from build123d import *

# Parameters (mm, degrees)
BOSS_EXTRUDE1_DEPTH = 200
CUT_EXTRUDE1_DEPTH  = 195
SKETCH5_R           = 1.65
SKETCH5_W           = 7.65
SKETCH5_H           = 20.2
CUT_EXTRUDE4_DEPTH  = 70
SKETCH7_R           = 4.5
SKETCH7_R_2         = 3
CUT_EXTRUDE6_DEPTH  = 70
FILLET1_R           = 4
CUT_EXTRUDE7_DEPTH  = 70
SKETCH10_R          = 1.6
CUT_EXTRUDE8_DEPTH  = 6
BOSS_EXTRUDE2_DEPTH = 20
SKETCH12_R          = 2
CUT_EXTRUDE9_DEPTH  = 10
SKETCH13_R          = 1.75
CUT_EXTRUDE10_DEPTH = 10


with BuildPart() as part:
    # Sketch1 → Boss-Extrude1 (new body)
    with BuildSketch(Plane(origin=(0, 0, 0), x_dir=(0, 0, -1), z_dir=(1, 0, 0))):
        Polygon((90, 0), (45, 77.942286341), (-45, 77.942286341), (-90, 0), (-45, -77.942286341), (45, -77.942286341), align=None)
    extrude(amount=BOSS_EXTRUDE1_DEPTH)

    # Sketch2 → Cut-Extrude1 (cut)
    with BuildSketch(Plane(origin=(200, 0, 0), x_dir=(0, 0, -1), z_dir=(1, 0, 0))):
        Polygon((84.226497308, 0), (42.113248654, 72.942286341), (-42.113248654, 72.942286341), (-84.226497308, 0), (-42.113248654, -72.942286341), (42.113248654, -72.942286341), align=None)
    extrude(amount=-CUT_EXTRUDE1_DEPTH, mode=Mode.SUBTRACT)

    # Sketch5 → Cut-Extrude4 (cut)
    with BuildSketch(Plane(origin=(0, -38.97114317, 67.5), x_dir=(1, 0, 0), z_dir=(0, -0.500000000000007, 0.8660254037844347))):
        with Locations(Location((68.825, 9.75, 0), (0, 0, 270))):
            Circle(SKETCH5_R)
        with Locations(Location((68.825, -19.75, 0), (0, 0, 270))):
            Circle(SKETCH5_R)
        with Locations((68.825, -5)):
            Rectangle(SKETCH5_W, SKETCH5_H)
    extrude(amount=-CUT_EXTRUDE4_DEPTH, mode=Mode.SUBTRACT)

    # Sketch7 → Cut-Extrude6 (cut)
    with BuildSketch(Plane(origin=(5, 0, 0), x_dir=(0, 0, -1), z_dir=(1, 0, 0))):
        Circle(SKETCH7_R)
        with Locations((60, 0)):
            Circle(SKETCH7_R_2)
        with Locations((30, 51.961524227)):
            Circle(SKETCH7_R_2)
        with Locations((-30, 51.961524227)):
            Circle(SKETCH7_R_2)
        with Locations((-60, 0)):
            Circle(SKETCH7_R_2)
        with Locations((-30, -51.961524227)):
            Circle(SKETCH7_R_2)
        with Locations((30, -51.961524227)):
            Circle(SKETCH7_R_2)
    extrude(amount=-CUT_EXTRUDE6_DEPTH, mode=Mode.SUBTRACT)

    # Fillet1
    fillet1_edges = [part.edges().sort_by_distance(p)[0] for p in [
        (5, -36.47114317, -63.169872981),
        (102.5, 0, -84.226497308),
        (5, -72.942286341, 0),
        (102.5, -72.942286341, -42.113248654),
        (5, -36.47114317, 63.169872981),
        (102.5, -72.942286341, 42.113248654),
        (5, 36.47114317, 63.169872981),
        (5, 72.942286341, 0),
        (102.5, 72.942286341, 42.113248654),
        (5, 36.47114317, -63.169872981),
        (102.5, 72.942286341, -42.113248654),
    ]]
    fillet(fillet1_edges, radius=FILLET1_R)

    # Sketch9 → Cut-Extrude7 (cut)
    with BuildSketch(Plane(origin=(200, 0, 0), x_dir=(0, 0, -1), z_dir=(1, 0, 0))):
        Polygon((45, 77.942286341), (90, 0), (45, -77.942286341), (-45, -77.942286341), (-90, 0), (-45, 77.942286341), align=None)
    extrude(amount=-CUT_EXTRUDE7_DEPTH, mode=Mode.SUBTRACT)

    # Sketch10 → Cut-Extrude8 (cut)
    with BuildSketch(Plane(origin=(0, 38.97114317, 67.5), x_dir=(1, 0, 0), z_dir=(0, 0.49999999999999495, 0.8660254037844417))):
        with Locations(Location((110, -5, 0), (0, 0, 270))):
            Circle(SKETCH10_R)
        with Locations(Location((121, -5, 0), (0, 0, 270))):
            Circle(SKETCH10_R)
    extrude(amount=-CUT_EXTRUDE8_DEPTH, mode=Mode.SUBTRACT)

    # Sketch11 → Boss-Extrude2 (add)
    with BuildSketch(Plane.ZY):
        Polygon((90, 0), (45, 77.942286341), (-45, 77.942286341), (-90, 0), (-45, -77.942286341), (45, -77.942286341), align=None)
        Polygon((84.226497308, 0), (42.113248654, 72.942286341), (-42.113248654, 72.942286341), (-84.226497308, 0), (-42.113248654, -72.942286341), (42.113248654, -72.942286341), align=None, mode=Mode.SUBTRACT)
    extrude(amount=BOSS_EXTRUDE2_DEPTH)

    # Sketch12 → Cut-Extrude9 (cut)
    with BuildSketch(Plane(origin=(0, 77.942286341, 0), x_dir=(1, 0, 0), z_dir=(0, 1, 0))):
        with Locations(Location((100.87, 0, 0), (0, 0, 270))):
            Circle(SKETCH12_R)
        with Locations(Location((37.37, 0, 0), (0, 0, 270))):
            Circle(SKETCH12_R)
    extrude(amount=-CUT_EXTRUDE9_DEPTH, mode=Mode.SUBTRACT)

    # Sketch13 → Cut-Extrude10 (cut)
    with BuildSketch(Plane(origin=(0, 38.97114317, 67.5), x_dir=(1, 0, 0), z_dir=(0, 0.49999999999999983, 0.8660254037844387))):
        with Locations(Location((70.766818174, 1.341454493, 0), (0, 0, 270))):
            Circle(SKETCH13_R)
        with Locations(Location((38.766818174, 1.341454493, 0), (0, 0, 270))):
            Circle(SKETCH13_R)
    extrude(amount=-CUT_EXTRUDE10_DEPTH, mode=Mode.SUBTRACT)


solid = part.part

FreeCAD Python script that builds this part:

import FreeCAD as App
import Part
import Sketcher

V = App.Vector
Q = App.Units.Quantity


def edges_at(feature, points):
    """Names of the edges that pass closest to the given points."""
    edges = feature.Shape.Edges
    near = lambda p: min(range(len(edges)), key=lambda i: edges[i].distToShape(Part.Vertex(*p))[0])
    return sorted({f"Edge{near(p) + 1}" for p in points})

doc = App.newDocument("Part")
body = doc.addObject("PartDesign::Body", "Body")

sketch1 = body.newObject("Sketcher::SketchObject", "Sketch")
sketch1.AttachmentSupport = (doc.getObject("YZ_Plane"), [""])
sketch1.MapMode = "FlatFace"
sketch1.addGeometry([
    Part.LineSegment(V(0, -90, 0), V(78, -45, 0)),
    Part.LineSegment(V(78, -45, 0), V(78, 45, 0)),
    Part.LineSegment(V(78, 45, 0), V(0, 90, 0)),
    Part.LineSegment(V(0, 90, 0), V(-78, 45, 0)),
    Part.LineSegment(V(-78, 45, 0), V(-78, -45, 0)),
    Part.LineSegment(V(-78, -45, 0), V(0, -90, 0)),
], False)
sketch1.addConstraint([
    Sketcher.Constraint("Coincident", 0, 2, 1, 1),
    Sketcher.Constraint("Coincident", 1, 2, 2, 1),
    Sketcher.Constraint("Coincident", 2, 2, 3, 1),
    Sketcher.Constraint("Coincident", 3, 2, 4, 1),
    Sketcher.Constraint("Coincident", 4, 2, 5, 1),
    Sketcher.Constraint("Coincident", 5, 2, 0, 1),
    Sketcher.Constraint("Vertical", 1),
    Sketcher.Constraint("Vertical", 4),
    Sketcher.Constraint("Symmetric", 0, 2, 3, 2, -1, 1),
    Sketcher.Constraint("Symmetric", 2, 2, 5, 2, -1, 1),
    Sketcher.Constraint("PointOnObject", 2, 2, -2),
    Sketcher.Constraint("Parallel", 2, 5),
    Sketcher.Constraint("Horizontal", 1, 2, 3, 2),
    Sketcher.Constraint("DistanceY", 1, 1, 1, 2, 90.0),
    Sketcher.Constraint("Angle", 0, Q("30 deg")),
    Sketcher.Constraint("Distance", 0, 90.0),
])
pad1 = body.newObject("PartDesign::Pad", "Pad")
pad1.Profile = sketch1
pad1.Length = 200

sketch2 = body.newObject("Sketcher::SketchObject", "Sketch001")
sketch2.AttachmentSupport = (doc.getObject("YZ_Plane"), [""])
sketch2.MapMode = "FlatFace"
sketch2.AttachmentOffset = App.Placement(V(0, 0, 200), App.Rotation())
sketch2.addGeometry([
    Part.LineSegment(V(0, -84, 0), V(73, -42, 0)),
    Part.LineSegment(V(73, -42, 0), V(73, 42, 0)),
    Part.LineSegment(V(73, 42, 0), V(0, 84, 0)),
    Part.LineSegment(V(0, 84, 0), V(-73, 42, 0)),
    Part.LineSegment(V(-73, 42, 0), V(-73, -42, 0)),
    Part.LineSegment(V(-73, -42, 0), V(0, -84, 0)),
], False)
sketch2.addConstraint([
    Sketcher.Constraint("Coincident", 0, 2, 1, 1),
    Sketcher.Constraint("Coincident", 1, 2, 2, 1),
    Sketcher.Constraint("Coincident", 2, 2, 3, 1),
    Sketcher.Constraint("Coincident", 3, 2, 4, 1),
    Sketcher.Constraint("Coincident", 4, 2, 5, 1),
    Sketcher.Constraint("Coincident", 5, 2, 0, 1),
    Sketcher.Constraint("Vertical", 1),
    Sketcher.Constraint("Vertical", 4),
    Sketcher.Constraint("Symmetric", 0, 2, 3, 2, -1, 1),
    Sketcher.Constraint("Symmetric", 2, 2, 5, 2, -1, 1),
    Sketcher.Constraint("PointOnObject", 2, 2, -2),
    Sketcher.Constraint("Parallel", 2, 5),
    Sketcher.Constraint("Horizontal", 1, 2, 3, 2),
    Sketcher.Constraint("Angle", 0, Q("30 deg")),
    Sketcher.Constraint("DistanceY", 1, 1, 1, 2, 84.226497),
    Sketcher.Constraint("DistanceY", 1, 2, 2, 2, 42.113249),
])
pocket1 = body.newObject("PartDesign::Pocket", "Pocket")
pocket1.Profile = sketch2
pocket1.Length = 195

sketch3 = body.newObject("Sketcher::SketchObject", "Sketch002")
sketch3.Placement = App.Placement(V(0, -38.971143, 67.5), App.Rotation(V(1, 0, 0), V(0, 0.866025404, 0.5), V(0, -0.5, 0.866025404), "ZXY"))
sketch3.addGeometry([
    Part.Circle(V(68.8, 9.8, 0), V(0, 0, 1), 1.6),
    Part.Circle(V(68.8, -19.8, 0), V(0, 0, 1), 1.6),
    Part.LineSegment(V(65, 5.1, 0), V(65, -15.1, 0)),
    Part.LineSegment(V(65, -15.1, 0), V(72.7, -15.1, 0)),
    Part.LineSegment(V(72.7, -15.1, 0), V(72.7, 5.1, 0)),
    Part.LineSegment(V(72.7, 5.1, 0), V(65, 5.1, 0)),
], False)
sketch3.addConstraint([
    Sketcher.Constraint("Coincident", 2, 2, 3, 1),
    Sketcher.Constraint("Coincident", 3, 2, 4, 1),
    Sketcher.Constraint("Coincident", 4, 2, 5, 1),
    Sketcher.Constraint("Coincident", 5, 2, 2, 1),
    Sketcher.Constraint("Vertical", 2),
    Sketcher.Constraint("Horizontal", 3),
    Sketcher.Constraint("Vertical", 4),
    Sketcher.Constraint("Horizontal", 5),
    Sketcher.Constraint("Equal", 0, 1),
    Sketcher.Constraint("Vertical", 0, 3, 1, 3),
    Sketcher.Constraint("Diameter", 0, 3.3),
    Sketcher.Constraint("DistanceY", 2, 2, 2, 1, 20.2),
    Sketcher.Constraint("DistanceX", -1, 1, 2, 2, 65.0),
    Sketcher.Constraint("DistanceX", 3, 1, 3, 2, 7.65),
    Sketcher.Constraint("DistanceY", 2, 2, -1, 1, 15.1),
    Sketcher.Constraint("DistanceY", 1, 3, 0, 3, 29.5),
    Sketcher.Constraint("DistanceY", -1, 1, 0, 3, 9.75),
    Sketcher.Constraint("DistanceX", -1, 1, 0, 3, 68.825),
])
pocket2 = body.newObject("PartDesign::Pocket", "Pocket001")
pocket2.Profile = sketch3
pocket2.Length = 70

sketch4 = body.newObject("Sketcher::SketchObject", "Sketch003")
sketch4.AttachmentSupport = (doc.getObject("YZ_Plane"), [""])
sketch4.MapMode = "FlatFace"
sketch4.AttachmentOffset = App.Placement(V(0, 0, 5), App.Rotation())
sketch4.addGeometry([
    Part.Circle(V(0, 0, 0), V(0, 0, 1), 4.5),
    Part.Circle(V(0, -60, 0), V(0, 0, 1), 3),
    Part.Circle(V(52, -30, 0), V(0, 0, 1), 3),
    Part.Circle(V(52, 30, 0), V(0, 0, 1), 3),
    Part.Circle(V(0, 60, 0), V(0, 0, 1), 3),
    Part.Circle(V(-52, 30, 0), V(0, 0, 1), 3),
    Part.Circle(V(-52, -30, 0), V(0, 0, 1), 3),
], False)
sketch4.addConstraint([
    Sketcher.Constraint("Coincident", 0, 3, -1, 1),
    Sketcher.Constraint("Equal", 1, 2),
    Sketcher.Constraint("Equal", 2, 3),
    Sketcher.Constraint("Equal", 3, 4),
    Sketcher.Constraint("Equal", 4, 5),
    Sketcher.Constraint("Equal", 5, 6),
    Sketcher.Constraint("Symmetric", 1, 3, 4, 3, -1, 1),
    Sketcher.Constraint("Symmetric", 2, 3, 5, 3, -1, 1),
    Sketcher.Constraint("Symmetric", 3, 3, 6, 3, -1, 1),
    Sketcher.Constraint("Symmetric", 3, 3, 5, 3, -2),
    Sketcher.Constraint("PointOnObject", 1, 3, -2),
    Sketcher.Constraint("Diameter", 0, 9.0),
    Sketcher.Constraint("Diameter", 1, 6.0),
    Sketcher.Constraint("DistanceY", 1, 3, -1, 1, 60.0),
    Sketcher.Constraint("DistanceY", 2, 3, -1, 1, 30.0),
    Sketcher.Constraint("DistanceX", 5, 3, 3, 3, 103.923048),
])
pocket3 = body.newObject("PartDesign::Pocket", "Pocket002")
pocket3.Profile = sketch4
pocket3.Length = 70
doc.recompute()

fillet = body.newObject("PartDesign::Fillet", "Fillet")
fillet.Base = (pocket3, edges_at(pocket3, [
    (5, -36.471, -63.17),
    (102.5, 0, -84.226),
    (5, -72.942, 0),
    (102.5, -72.942, -42.113),
    (5, -36.471, 63.17),
    (102.5, -72.942, 42.113),
    (5, 36.471, 63.17),
    (5, 72.942, 0),
    (102.5, 72.942, 42.113),
    (5, 36.471, -63.17),
    (102.5, 72.942, -42.113),
]))
fillet.Radius = 4

sketch5 = body.newObject("Sketcher::SketchObject", "Sketch004")
sketch5.AttachmentSupport = (doc.getObject("YZ_Plane"), [""])
sketch5.MapMode = "FlatFace"
sketch5.AttachmentOffset = App.Placement(V(0, 0, 200), App.Rotation())
sketch5.addGeometry([
    Part.LineSegment(V(0, -90, 0), V(78, -45, 0)),
    Part.LineSegment(V(78, -45, 0), V(78, 45, 0)),
    Part.LineSegment(V(78, 45, 0), V(0, 90, 0)),
    Part.LineSegment(V(0, 90, 0), V(-78, 45, 0)),
    Part.LineSegment(V(-78, 45, 0), V(-78, -45, 0)),
    Part.LineSegment(V(-78, -45, 0), V(0, -90, 0)),
], False)
sketch5.addConstraint([
    Sketcher.Constraint("Coincident", 0, 2, 1, 1),
    Sketcher.Constraint("Coincident", 1, 2, 2, 1),
    Sketcher.Constraint("Coincident", 2, 2, 3, 1),
    Sketcher.Constraint("Coincident", 3, 2, 4, 1),
    Sketcher.Constraint("Coincident", 4, 2, 5, 1),
    Sketcher.Constraint("Coincident", 5, 2, 0, 1),
    Sketcher.Constraint("Vertical", 1),
    Sketcher.Constraint("Vertical", 4),
    Sketcher.Constraint("Symmetric", 0, 2, 3, 2, -1, 1),
    Sketcher.Constraint("Symmetric", 2, 2, 5, 2, -1, 1),
    Sketcher.Constraint("PointOnObject", 2, 2, -2),
    Sketcher.Constraint("Parallel", 2, 5),
    Sketcher.Constraint("Horizontal", 1, 2, 3, 2),
    Sketcher.Constraint("DistanceY", 1, 1, 1, 2, 90.0),
    Sketcher.Constraint("Angle", 0, Q("30 deg")),
    Sketcher.Constraint("Distance", 0, 90.0),
])
pocket4 = body.newObject("PartDesign::Pocket", "Pocket003")
pocket4.Profile = sketch5
pocket4.Length = 70

sketch6 = body.newObject("Sketcher::SketchObject", "Sketch005")
sketch6.Placement = App.Placement(V(0, 38.971143, 67.5), App.Rotation(V(1, 0, 0), V(0, 0.866025404, -0.5), V(0, 0.5, 0.866025404), "ZXY"))
sketch6.addGeometry([
    Part.Circle(V(110, -5, 0), V(0, 0, 1), 1.6),
    Part.Circle(V(121, -5, 0), V(0, 0, 1), 1.6),
], False)
sketch6.addConstraint([
    Sketcher.Constraint("Equal", 0, 1),
    Sketcher.Constraint("Horizontal", 0, 3, 1, 3),
    Sketcher.Constraint("Diameter", 0, 3.2),
    Sketcher.Constraint("DistanceX", -1, 1, 0, 3, 110.0),
    Sketcher.Constraint("DistanceY", 0, 3, -1, 1, 5.0),
    Sketcher.Constraint("DistanceX", -1, 1, 1, 3, 121.0),
])
pocket5 = body.newObject("PartDesign::Pocket", "Pocket004")
pocket5.Profile = sketch6
pocket5.Length = 6

sketch7 = body.newObject("Sketcher::SketchObject", "Sketch006")
sketch7.AttachmentSupport = (doc.getObject("YZ_Plane"), [""])
sketch7.MapMode = "FlatFace"
sketch7.addGeometry([
    Part.LineSegment(V(0, 90, 0), V(78, 45, 0)),
    Part.LineSegment(V(78, 45, 0), V(78, -45, 0)),
    Part.LineSegment(V(78, -45, 0), V(0, -90, 0)),
    Part.LineSegment(V(0, -90, 0), V(-78, -45, 0)),
    Part.LineSegment(V(-78, -45, 0), V(-78, 45, 0)),
    Part.LineSegment(V(-78, 45, 0), V(0, 90, 0)),
    Part.LineSegment(V(73, 42, 0), V(0, 84, 0)),
    Part.LineSegment(V(0, 84, 0), V(-73, 42, 0)),
    Part.LineSegment(V(-73, 42, 0), V(-73, -42, 0)),
    Part.LineSegment(V(-73, -42, 0), V(0, -84, 0)),
    Part.LineSegment(V(0, -84, 0), V(73, -42, 0)),
    Part.LineSegment(V(73, -42, 0), V(73, 42, 0)),
], False)
sketch7.addConstraint([
    Sketcher.Constraint("Coincident", 0, 2, 1, 1),
    Sketcher.Constraint("Coincident", 1, 2, 2, 1),
    Sketcher.Constraint("Coincident", 2, 2, 3, 1),
    Sketcher.Constraint("Coincident", 3, 2, 4, 1),
    Sketcher.Constraint("Coincident", 4, 2, 5, 1),
    Sketcher.Constraint("Coincident", 5, 2, 0, 1),
    Sketcher.Constraint("Coincident", 6, 2, 7, 1),
    Sketcher.Constraint("Coincident", 7, 2, 8, 1),
    Sketcher.Constraint("Coincident", 8, 2, 9, 1),
    Sketcher.Constraint("Coincident", 9, 2, 10, 1),
    Sketcher.Constraint("Coincident", 10, 2, 11, 1),
    Sketcher.Constraint("Coincident", 11, 2, 6, 1),
    Sketcher.Constraint("Vertical", 1),
    Sketcher.Constraint("Vertical", 4),
    Sketcher.Constraint("Vertical", 8),
    Sketcher.Constraint("Vertical", 11),
    Sketcher.Constraint("Symmetric", 0, 2, 3, 2, -1, 1),
    Sketcher.Constraint("Symmetric", 2, 2, 5, 2, -1, 1),
    Sketcher.Constraint("Symmetric", 6, 2, 9, 2, -1, 1),
    Sketcher.Constraint("Symmetric", 7, 2, 10, 2, -1, 1),
    Sketcher.Constraint("PointOnObject", 2, 2, -2),
    Sketcher.Constraint("PointOnObject", 6, 2, -2),
    Sketcher.Constraint("Parallel", 2, 5),
    Sketcher.Constraint("Parallel", 3, 6),
    Sketcher.Constraint("Parallel", 5, 7),
    Sketcher.Constraint("Parallel", 6, 9),
    Sketcher.Constraint("Horizontal", 1, 2, 3, 2),
    Sketcher.Constraint("DistanceY", 1, 2, 1, 1, 90.0),
    Sketcher.Constraint("Angle", 0, Q("-30 deg")),
    Sketcher.Constraint("Distance", 0, 90.0),
    Sketcher.Constraint("DistanceX", 4, 2, 7, 2, 5.0),
    Sketcher.Constraint("DistanceY", 8, 2, 8, 1, 84.226497),
])
pad2 = body.newObject("PartDesign::Pad", "Pad001")
pad2.Profile = sketch7
pad2.Length = 20
pad2.Reversed = True

sketch8 = body.newObject("Sketcher::SketchObject", "Sketch007")
sketch8.AttachmentSupport = (doc.getObject("XZ_Plane"), [""])
sketch8.MapMode = "FlatFace"
sketch8.AttachmentOffset = App.Placement(V(0, 0, -77.942286), App.Rotation())
sketch8.addGeometry([
    Part.Circle(V(100.9, 0, 0), V(0, 0, 1), 2),
    Part.Circle(V(37.4, 0, 0), V(0, 0, 1), 2),
], False)
sketch8.addConstraint([
    Sketcher.Constraint("Equal", 0, 1),
    Sketcher.Constraint("PointOnObject", 0, 3, -1),
    Sketcher.Constraint("PointOnObject", 1, 3, -1),
    Sketcher.Constraint("Diameter", 0, 4.0),
    Sketcher.Constraint("DistanceX", 1, 3, 0, 3, 63.5),
    Sketcher.Constraint("DistanceX", -1, 1, 0, 3, 100.87),
])
pocket6 = body.newObject("PartDesign::Pocket", "Pocket005")
pocket6.Profile = sketch8
pocket6.Length = 10
pocket6.Reversed = True

sketch9 = body.newObject("Sketcher::SketchObject", "Sketch008")
sketch9.Placement = App.Placement(V(0, 38.971143, 67.5), App.Rotation(V(1, 0, 0), V(0, 0.866025404, -0.5), V(0, 0.5, 0.866025404), "ZXY"))
sketch9.addGeometry([
    Part.Circle(V(70.8, 1.3, 0), V(0, 0, 1), 1.8),
    Part.Circle(V(38.8, 1.3, 0), V(0, 0, 1), 1.8),
], False)
sketch9.addConstraint([
    Sketcher.Constraint("Equal", 0, 1),
    Sketcher.Constraint("Horizontal", 0, 3, 1, 3),
    Sketcher.Constraint("Diameter", 0, 3.5),
    Sketcher.Constraint("DistanceX", 1, 3, 0, 3, 32.0),
    Sketcher.Constraint("DistanceX", -1, 1, 0, 3, 70.766818),
    Sketcher.Constraint("DistanceY", -1, 1, 0, 3, 1.341454),
])
pocket7 = body.newObject("PartDesign::Pocket", "Pocket006")
pocket7.Profile = sketch9
pocket7.Length = 10

doc.recompute()
